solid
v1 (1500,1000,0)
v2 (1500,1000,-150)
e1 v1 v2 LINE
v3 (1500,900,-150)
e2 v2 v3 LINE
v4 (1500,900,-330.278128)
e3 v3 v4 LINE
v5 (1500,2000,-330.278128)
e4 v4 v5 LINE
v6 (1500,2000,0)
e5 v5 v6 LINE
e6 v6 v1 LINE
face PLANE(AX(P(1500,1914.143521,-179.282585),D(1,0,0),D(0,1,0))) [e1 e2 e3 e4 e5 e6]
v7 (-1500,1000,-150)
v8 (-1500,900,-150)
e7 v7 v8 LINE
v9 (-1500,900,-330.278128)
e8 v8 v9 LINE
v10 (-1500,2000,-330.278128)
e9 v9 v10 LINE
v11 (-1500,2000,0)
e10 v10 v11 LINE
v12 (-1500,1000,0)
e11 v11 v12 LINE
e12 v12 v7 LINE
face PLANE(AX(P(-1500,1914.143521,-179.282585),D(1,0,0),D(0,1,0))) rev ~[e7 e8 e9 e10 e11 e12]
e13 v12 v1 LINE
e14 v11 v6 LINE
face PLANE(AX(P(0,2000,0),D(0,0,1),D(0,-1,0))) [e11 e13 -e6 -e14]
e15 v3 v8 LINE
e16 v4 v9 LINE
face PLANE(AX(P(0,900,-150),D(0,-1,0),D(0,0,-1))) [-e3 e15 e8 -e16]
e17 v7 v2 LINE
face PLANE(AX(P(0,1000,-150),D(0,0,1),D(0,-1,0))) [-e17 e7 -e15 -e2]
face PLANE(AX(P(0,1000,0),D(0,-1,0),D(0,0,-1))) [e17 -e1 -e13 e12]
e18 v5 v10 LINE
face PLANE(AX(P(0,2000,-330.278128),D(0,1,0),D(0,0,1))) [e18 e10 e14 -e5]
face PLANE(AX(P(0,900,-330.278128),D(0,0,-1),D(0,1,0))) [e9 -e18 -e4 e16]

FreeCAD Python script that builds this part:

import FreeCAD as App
import Part
import Sketcher
Q = App.Units.Quantity


def add_polygon(sketch, points):
    """Adds a closed chain of lines whose ends are joined by coincident constraints."""
    first, n = sketch.GeometryCount, len(points)
    for a, b in zip(points, points[1:] + points[:1]):
        sketch.addGeometry(Part.LineSegment(App.Vector(*a, 0), App.Vector(*b, 0)), False)
    for i in range(n):
        sketch.addConstraint(Sketcher.Constraint("Coincident", first + i, 2, first + (i + 1) % n, 1))

doc = App.newDocument("Part")
params = doc.addObject("Spreadsheet::Sheet", "Params")
for row, (alias, value) in enumerate([
    ("sketch1_width", "1000 mm"),
    ("sketch1_width2", "100 mm"),
    ("sketch1_height", "150 mm"),
    ("pad1_length", "3000 mm"),
], start=1):
    params.set(f"A{row}", alias)
    params.set(f"B{row}", "=" + value)
    params.setAlias(f"B{row}", alias)

body = doc.addObject("PartDesign::Body", "Body")

# Sketch on YZ plane
sketch1 = body.newObject("Sketcher::SketchObject", "Sketch")
sketch1.AttachmentSupport = (doc.getObject("YZ_Plane"), [""])
sketch1.MapMode = "FlatFace"
add_polygon(sketch1, [(2000, -330), (2000, 0), (1000, 0), (1000, -150), (900, -150), (900, -330)])  # lines 0-5
sketch1.addConstraint([
    Sketcher.Constraint("Vertical", 0),
    Sketcher.Constraint("Horizontal", 1),
    Sketcher.Constraint("Vertical", 2),
    Sketcher.Constraint("Horizontal", 3),
    Sketcher.Constraint("Vertical", 4),
    Sketcher.Constraint("Horizontal", 5),
    Sketcher.Constraint("PointOnObject", 0, 2, -1),
    Sketcher.Constraint("DistanceX", 1, 2, 1, 1, Q("1000 mm")),
    Sketcher.Constraint("DistanceX", 3, 2, 3, 1, Q("100 mm")),
    Sketcher.Constraint("DistanceY", 2, 2, 2, 1, Q("150 mm")),
    Sketcher.Constraint("DistanceX", -1, 1, 0, 2, Q("2000 mm")),
    Sketcher.Constraint("DistanceY", 0, 1, 0, 2, Q("330.278128 mm")),
])
sketch1.setExpression("Constraints[13]", "Params.sketch1_width")
sketch1.setExpression("Constraints[14]", "Params.sketch1_width2")
sketch1.setExpression("Constraints[15]", "Params.sketch1_height")
pad1 = body.newObject("PartDesign::Pad", "Pad")
pad1.Profile = sketch1
pad1.setExpression("Length", "Params.pad1_length")
pad1.Midplane = True

doc.recompute()
